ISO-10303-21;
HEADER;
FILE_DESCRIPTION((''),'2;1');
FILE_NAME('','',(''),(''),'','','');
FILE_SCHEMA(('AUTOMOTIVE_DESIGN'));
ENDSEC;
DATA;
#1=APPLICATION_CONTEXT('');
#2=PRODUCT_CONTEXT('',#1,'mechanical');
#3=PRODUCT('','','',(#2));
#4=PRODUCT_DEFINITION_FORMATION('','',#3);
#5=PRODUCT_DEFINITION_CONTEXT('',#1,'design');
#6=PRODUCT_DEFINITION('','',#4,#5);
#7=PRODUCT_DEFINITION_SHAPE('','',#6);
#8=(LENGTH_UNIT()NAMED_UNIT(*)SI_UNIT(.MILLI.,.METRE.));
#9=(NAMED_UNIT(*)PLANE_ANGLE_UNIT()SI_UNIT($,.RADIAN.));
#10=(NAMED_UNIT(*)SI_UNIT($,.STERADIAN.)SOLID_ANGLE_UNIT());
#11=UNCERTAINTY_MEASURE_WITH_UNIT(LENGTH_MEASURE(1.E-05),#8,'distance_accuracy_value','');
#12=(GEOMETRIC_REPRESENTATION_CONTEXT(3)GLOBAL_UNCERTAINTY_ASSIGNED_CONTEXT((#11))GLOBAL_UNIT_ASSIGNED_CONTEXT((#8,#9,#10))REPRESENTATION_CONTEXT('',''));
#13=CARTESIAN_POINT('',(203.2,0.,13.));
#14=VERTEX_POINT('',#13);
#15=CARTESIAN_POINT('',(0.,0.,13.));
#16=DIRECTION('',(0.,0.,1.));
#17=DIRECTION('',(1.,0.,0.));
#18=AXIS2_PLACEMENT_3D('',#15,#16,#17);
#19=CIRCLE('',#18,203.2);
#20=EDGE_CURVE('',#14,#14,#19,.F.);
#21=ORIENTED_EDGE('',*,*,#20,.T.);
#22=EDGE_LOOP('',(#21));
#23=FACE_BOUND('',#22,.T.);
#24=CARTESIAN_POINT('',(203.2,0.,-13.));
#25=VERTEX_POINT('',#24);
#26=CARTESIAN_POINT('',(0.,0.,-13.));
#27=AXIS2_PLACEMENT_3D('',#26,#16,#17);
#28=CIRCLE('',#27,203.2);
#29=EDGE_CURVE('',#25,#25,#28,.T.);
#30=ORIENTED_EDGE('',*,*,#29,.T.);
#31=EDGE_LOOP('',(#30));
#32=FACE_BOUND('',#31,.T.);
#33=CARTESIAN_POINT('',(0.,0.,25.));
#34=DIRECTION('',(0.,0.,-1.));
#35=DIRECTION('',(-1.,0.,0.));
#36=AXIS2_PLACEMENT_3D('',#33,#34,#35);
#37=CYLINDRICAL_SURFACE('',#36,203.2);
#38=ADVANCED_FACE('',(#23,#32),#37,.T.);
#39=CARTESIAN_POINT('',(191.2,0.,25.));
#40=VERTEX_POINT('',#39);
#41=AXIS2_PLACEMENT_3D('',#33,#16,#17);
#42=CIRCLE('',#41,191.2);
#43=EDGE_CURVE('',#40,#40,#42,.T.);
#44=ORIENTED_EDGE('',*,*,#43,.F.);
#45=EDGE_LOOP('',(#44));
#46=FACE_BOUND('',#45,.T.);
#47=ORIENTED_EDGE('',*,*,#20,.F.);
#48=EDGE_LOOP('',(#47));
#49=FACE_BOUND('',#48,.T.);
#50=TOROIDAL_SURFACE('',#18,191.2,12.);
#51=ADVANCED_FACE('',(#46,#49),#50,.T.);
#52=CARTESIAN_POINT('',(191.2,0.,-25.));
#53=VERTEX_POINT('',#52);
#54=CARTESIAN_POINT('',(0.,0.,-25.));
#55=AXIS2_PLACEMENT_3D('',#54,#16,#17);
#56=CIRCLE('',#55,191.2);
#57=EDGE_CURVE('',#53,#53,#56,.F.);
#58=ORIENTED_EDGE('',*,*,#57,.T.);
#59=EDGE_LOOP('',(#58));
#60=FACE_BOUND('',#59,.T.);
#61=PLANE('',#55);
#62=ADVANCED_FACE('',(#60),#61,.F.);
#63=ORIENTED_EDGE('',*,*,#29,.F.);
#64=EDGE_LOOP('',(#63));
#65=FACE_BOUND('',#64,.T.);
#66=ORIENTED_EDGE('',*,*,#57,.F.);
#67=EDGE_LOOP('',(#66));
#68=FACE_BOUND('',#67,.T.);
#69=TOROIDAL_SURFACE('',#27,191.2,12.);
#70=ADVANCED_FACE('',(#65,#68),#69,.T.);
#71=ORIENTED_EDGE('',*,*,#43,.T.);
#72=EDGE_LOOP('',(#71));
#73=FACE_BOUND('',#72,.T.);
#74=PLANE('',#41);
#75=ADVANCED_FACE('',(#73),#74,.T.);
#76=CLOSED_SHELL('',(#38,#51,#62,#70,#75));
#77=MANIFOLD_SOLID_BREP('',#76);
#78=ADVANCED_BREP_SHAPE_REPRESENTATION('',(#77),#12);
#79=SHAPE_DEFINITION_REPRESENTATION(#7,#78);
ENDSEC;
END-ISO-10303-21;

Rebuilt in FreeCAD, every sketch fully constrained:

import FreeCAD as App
import Part
import Sketcher
Q = App.Units.Quantity


def edges_at(feature, points):
    """Names of the edges that pass closest to the given points."""
    edges = feature.Shape.Edges
    near = lambda p: min(range(len(edges)), key=lambda i: edges[i].distToShape(Part.Vertex(*p))[0])
    return sorted({f"Edge{near(p) + 1}" for p in points})

doc = App.newDocument("Part")
body = doc.addObject("PartDesign::Body", "Body")

# Sketch on XY plane
sketch1 = body.newObject("Sketcher::SketchObject", "Sketch")
sketch1.AttachmentSupport = (doc.getObject("XY_Plane"), [""])
sketch1.MapMode = "FlatFace"
sketch1.addGeometry(Part.Circle(App.Vector(0, 0, 0), App.Vector(0, 0, 1), 203), False)
sketch1.addConstraint(Sketcher.Constraint("Coincident", 0, 3, -1, 1))
sketch1.addConstraint(Sketcher.Constraint("Diameter", 0, Q("406.4 mm")))
pad1 = body.newObject("PartDesign::Pad", "Pad")
pad1.Profile = sketch1
pad1.Length = 50
pad1.Midplane = True
doc.recompute()

fillet = body.newObject("PartDesign::Fillet", "Fillet")
fillet.Base = (pad1, edges_at(pad1, [(-203.2, 0, -25), (-203.2, 0, 25)]))
fillet.Radius = 12

doc.recompute()
